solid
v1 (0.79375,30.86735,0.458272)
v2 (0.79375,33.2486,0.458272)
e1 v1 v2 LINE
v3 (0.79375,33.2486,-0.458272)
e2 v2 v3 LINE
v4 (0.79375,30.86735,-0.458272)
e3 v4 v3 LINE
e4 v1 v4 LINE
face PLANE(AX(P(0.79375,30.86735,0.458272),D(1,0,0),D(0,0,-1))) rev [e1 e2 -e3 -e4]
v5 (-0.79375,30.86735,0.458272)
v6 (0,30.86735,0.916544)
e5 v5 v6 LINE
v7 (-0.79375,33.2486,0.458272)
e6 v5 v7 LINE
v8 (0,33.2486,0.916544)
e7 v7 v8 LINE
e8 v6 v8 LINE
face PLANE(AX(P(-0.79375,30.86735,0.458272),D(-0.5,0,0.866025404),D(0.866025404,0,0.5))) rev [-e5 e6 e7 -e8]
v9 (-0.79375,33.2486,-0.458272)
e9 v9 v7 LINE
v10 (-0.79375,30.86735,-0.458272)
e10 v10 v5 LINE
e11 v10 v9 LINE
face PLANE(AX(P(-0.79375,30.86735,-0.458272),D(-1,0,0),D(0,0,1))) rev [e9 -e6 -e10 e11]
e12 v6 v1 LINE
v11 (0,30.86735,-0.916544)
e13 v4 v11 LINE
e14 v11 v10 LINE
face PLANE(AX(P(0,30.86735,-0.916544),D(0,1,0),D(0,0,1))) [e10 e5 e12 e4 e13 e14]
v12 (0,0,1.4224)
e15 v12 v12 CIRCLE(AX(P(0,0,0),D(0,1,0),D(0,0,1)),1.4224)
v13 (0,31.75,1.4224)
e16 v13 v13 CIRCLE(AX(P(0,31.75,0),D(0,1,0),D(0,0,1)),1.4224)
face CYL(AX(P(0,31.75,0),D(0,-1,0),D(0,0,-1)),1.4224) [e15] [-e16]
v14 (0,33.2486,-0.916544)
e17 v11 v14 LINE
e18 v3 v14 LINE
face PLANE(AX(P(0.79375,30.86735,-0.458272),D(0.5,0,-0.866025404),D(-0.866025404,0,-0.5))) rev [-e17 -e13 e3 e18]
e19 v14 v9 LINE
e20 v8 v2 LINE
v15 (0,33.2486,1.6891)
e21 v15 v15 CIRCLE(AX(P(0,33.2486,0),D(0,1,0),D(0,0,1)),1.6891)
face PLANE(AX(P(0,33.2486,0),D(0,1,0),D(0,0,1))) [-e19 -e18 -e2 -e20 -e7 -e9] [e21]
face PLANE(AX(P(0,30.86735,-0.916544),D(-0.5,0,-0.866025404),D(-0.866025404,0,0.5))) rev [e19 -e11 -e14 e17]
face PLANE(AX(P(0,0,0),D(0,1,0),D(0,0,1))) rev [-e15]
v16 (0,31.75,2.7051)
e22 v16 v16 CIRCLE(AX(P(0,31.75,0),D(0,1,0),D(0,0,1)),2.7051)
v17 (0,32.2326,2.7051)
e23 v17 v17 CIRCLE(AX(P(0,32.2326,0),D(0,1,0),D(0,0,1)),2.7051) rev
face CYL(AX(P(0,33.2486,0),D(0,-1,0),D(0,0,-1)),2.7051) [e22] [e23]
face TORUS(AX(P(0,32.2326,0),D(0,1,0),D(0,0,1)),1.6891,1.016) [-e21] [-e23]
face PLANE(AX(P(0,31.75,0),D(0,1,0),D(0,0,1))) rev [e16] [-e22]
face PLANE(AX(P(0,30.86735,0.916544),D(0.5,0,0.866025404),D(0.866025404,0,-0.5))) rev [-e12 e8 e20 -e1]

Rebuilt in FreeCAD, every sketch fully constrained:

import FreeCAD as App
import Part
import Sketcher
Q = App.Units.Quantity


def edges_at(feature, points):
    """Names of the edges that pass closest to the given points."""
    edges = feature.Shape.Edges
    near = lambda p: min(range(len(edges)), key=lambda i: edges[i].distToShape(Part.Vertex(*p))[0])
    return sorted({f"Edge{near(p) + 1}" for p in points})


def add_polygon(sketch, points):
    """Adds a closed chain of lines whose ends are joined by coincident constraints."""
    first, n = sketch.GeometryCount, len(points)
    for a, b in zip(points, points[1:] + points[:1]):
        sketch.addGeometry(Part.LineSegment(App.Vector(*a, 0), App.Vector(*b, 0)), False)
    for i in range(n):
        sketch.addConstraint(Sketcher.Constraint("Coincident", first + i, 2, first + (i + 1) % n, 1))

doc = App.newDocument("Part")
body = doc.addObject("PartDesign::Body", "Body")

# Sketch on XZ plane
sketch1 = body.newObject("Sketcher::SketchObject", "Sketch")
sketch1.AttachmentSupport = (doc.getObject("XZ_Plane"), [""])
sketch1.MapMode = "FlatFace"
sketch1.addGeometry(Part.Circle(App.Vector(0, 0, 0), App.Vector(0, 0, 1), 1.4224), False)
sketch1.addConstraint([
    Sketcher.Constraint("Coincident", 0, 3, -1, 1),
    Sketcher.Constraint("Diameter", 0, Q("0.112 in")),
])
pad1 = body.newObject("PartDesign::Pad", "Pad")
pad1.Profile = sketch1
pad1.Length = Q("1.25 in")
pad1.Reversed = True

# Sketch on XZ plane
sketch2 = body.newObject("Sketcher::SketchObject", "Sketch001")
sketch2.AttachmentSupport = (doc.getObject("XZ_Plane"), [""])
sketch2.MapMode = "FlatFace"
sketch2.AttachmentOffset = App.Placement(App.Vector(0, 0, -1.25 * 25.4), App.Rotation())
sketch2.addGeometry(Part.Circle(App.Vector(0, 0, 0), App.Vector(0, 0, 1), 2.7051), False)
sketch2.addConstraint([
    Sketcher.Constraint("Coincident", 0, 3, -1, 1),
    Sketcher.Constraint("Diameter", 0, Q("0.213 in")),
])
pad2 = body.newObject("PartDesign::Pad", "Pad001")
pad2.Profile = sketch2
pad2.Length = Q("0.059 in")
pad2.Reversed = True
doc.recompute()

fillet = body.newObject("PartDesign::Fillet", "Fillet")
fillet.Base = (pad2, edges_at(pad2, [(-2.705, 33.249, 0)]))
fillet.Radius = Q("0.04 in")

# Sketch on XZ plane
sketch3 = body.newObject("Sketcher::SketchObject", "Sketch002")
sketch3.AttachmentSupport = (doc.getObject("XZ_Plane"), [""])
sketch3.MapMode = "FlatFace"
sketch3.AttachmentOffset = App.Placement(App.Vector(0, 0, -1.309 * 25.4), App.Rotation())
add_polygon(sketch3, [(0, -0.916544), (-0.79375, -0.458272), (-0.79375, 0.458272), (0, 0.916544), (0.79375, 0.458272), (0.79375, -0.458272)])  # lines 0-5
sketch3.addConstraint([
    Sketcher.Constraint("Vertical", 1),
    Sketcher.Constraint("Vertical", 4),
    Sketcher.Constraint("Symmetric", 0, 2, 3, 2, -1, 1),
    Sketcher.Constraint("Symmetric", 2, 2, 5, 2, -1, 1),
    Sketcher.Constraint("PointOnObject", 2, 2, -2),
    Sketcher.Constraint("Parallel", 2, 5),
    Sketcher.Constraint("Horizontal", 1, 2, 3, 2),
    Sketcher.Constraint("Angle", 0, Q("150 deg")),
    Sketcher.Constraint("DistanceX", 0, 2, -1, 1, Q("0.03125 in")),
    Sketcher.Constraint("DistanceY", 1, 1, 1, 2, 0.916544),
])
pocket1 = body.newObject("PartDesign::Pocket", "Pocket")
pocket1.Profile = sketch3
pocket1.Length = Q("0.09375 in")
pocket1.Reversed = True

doc.recompute()
